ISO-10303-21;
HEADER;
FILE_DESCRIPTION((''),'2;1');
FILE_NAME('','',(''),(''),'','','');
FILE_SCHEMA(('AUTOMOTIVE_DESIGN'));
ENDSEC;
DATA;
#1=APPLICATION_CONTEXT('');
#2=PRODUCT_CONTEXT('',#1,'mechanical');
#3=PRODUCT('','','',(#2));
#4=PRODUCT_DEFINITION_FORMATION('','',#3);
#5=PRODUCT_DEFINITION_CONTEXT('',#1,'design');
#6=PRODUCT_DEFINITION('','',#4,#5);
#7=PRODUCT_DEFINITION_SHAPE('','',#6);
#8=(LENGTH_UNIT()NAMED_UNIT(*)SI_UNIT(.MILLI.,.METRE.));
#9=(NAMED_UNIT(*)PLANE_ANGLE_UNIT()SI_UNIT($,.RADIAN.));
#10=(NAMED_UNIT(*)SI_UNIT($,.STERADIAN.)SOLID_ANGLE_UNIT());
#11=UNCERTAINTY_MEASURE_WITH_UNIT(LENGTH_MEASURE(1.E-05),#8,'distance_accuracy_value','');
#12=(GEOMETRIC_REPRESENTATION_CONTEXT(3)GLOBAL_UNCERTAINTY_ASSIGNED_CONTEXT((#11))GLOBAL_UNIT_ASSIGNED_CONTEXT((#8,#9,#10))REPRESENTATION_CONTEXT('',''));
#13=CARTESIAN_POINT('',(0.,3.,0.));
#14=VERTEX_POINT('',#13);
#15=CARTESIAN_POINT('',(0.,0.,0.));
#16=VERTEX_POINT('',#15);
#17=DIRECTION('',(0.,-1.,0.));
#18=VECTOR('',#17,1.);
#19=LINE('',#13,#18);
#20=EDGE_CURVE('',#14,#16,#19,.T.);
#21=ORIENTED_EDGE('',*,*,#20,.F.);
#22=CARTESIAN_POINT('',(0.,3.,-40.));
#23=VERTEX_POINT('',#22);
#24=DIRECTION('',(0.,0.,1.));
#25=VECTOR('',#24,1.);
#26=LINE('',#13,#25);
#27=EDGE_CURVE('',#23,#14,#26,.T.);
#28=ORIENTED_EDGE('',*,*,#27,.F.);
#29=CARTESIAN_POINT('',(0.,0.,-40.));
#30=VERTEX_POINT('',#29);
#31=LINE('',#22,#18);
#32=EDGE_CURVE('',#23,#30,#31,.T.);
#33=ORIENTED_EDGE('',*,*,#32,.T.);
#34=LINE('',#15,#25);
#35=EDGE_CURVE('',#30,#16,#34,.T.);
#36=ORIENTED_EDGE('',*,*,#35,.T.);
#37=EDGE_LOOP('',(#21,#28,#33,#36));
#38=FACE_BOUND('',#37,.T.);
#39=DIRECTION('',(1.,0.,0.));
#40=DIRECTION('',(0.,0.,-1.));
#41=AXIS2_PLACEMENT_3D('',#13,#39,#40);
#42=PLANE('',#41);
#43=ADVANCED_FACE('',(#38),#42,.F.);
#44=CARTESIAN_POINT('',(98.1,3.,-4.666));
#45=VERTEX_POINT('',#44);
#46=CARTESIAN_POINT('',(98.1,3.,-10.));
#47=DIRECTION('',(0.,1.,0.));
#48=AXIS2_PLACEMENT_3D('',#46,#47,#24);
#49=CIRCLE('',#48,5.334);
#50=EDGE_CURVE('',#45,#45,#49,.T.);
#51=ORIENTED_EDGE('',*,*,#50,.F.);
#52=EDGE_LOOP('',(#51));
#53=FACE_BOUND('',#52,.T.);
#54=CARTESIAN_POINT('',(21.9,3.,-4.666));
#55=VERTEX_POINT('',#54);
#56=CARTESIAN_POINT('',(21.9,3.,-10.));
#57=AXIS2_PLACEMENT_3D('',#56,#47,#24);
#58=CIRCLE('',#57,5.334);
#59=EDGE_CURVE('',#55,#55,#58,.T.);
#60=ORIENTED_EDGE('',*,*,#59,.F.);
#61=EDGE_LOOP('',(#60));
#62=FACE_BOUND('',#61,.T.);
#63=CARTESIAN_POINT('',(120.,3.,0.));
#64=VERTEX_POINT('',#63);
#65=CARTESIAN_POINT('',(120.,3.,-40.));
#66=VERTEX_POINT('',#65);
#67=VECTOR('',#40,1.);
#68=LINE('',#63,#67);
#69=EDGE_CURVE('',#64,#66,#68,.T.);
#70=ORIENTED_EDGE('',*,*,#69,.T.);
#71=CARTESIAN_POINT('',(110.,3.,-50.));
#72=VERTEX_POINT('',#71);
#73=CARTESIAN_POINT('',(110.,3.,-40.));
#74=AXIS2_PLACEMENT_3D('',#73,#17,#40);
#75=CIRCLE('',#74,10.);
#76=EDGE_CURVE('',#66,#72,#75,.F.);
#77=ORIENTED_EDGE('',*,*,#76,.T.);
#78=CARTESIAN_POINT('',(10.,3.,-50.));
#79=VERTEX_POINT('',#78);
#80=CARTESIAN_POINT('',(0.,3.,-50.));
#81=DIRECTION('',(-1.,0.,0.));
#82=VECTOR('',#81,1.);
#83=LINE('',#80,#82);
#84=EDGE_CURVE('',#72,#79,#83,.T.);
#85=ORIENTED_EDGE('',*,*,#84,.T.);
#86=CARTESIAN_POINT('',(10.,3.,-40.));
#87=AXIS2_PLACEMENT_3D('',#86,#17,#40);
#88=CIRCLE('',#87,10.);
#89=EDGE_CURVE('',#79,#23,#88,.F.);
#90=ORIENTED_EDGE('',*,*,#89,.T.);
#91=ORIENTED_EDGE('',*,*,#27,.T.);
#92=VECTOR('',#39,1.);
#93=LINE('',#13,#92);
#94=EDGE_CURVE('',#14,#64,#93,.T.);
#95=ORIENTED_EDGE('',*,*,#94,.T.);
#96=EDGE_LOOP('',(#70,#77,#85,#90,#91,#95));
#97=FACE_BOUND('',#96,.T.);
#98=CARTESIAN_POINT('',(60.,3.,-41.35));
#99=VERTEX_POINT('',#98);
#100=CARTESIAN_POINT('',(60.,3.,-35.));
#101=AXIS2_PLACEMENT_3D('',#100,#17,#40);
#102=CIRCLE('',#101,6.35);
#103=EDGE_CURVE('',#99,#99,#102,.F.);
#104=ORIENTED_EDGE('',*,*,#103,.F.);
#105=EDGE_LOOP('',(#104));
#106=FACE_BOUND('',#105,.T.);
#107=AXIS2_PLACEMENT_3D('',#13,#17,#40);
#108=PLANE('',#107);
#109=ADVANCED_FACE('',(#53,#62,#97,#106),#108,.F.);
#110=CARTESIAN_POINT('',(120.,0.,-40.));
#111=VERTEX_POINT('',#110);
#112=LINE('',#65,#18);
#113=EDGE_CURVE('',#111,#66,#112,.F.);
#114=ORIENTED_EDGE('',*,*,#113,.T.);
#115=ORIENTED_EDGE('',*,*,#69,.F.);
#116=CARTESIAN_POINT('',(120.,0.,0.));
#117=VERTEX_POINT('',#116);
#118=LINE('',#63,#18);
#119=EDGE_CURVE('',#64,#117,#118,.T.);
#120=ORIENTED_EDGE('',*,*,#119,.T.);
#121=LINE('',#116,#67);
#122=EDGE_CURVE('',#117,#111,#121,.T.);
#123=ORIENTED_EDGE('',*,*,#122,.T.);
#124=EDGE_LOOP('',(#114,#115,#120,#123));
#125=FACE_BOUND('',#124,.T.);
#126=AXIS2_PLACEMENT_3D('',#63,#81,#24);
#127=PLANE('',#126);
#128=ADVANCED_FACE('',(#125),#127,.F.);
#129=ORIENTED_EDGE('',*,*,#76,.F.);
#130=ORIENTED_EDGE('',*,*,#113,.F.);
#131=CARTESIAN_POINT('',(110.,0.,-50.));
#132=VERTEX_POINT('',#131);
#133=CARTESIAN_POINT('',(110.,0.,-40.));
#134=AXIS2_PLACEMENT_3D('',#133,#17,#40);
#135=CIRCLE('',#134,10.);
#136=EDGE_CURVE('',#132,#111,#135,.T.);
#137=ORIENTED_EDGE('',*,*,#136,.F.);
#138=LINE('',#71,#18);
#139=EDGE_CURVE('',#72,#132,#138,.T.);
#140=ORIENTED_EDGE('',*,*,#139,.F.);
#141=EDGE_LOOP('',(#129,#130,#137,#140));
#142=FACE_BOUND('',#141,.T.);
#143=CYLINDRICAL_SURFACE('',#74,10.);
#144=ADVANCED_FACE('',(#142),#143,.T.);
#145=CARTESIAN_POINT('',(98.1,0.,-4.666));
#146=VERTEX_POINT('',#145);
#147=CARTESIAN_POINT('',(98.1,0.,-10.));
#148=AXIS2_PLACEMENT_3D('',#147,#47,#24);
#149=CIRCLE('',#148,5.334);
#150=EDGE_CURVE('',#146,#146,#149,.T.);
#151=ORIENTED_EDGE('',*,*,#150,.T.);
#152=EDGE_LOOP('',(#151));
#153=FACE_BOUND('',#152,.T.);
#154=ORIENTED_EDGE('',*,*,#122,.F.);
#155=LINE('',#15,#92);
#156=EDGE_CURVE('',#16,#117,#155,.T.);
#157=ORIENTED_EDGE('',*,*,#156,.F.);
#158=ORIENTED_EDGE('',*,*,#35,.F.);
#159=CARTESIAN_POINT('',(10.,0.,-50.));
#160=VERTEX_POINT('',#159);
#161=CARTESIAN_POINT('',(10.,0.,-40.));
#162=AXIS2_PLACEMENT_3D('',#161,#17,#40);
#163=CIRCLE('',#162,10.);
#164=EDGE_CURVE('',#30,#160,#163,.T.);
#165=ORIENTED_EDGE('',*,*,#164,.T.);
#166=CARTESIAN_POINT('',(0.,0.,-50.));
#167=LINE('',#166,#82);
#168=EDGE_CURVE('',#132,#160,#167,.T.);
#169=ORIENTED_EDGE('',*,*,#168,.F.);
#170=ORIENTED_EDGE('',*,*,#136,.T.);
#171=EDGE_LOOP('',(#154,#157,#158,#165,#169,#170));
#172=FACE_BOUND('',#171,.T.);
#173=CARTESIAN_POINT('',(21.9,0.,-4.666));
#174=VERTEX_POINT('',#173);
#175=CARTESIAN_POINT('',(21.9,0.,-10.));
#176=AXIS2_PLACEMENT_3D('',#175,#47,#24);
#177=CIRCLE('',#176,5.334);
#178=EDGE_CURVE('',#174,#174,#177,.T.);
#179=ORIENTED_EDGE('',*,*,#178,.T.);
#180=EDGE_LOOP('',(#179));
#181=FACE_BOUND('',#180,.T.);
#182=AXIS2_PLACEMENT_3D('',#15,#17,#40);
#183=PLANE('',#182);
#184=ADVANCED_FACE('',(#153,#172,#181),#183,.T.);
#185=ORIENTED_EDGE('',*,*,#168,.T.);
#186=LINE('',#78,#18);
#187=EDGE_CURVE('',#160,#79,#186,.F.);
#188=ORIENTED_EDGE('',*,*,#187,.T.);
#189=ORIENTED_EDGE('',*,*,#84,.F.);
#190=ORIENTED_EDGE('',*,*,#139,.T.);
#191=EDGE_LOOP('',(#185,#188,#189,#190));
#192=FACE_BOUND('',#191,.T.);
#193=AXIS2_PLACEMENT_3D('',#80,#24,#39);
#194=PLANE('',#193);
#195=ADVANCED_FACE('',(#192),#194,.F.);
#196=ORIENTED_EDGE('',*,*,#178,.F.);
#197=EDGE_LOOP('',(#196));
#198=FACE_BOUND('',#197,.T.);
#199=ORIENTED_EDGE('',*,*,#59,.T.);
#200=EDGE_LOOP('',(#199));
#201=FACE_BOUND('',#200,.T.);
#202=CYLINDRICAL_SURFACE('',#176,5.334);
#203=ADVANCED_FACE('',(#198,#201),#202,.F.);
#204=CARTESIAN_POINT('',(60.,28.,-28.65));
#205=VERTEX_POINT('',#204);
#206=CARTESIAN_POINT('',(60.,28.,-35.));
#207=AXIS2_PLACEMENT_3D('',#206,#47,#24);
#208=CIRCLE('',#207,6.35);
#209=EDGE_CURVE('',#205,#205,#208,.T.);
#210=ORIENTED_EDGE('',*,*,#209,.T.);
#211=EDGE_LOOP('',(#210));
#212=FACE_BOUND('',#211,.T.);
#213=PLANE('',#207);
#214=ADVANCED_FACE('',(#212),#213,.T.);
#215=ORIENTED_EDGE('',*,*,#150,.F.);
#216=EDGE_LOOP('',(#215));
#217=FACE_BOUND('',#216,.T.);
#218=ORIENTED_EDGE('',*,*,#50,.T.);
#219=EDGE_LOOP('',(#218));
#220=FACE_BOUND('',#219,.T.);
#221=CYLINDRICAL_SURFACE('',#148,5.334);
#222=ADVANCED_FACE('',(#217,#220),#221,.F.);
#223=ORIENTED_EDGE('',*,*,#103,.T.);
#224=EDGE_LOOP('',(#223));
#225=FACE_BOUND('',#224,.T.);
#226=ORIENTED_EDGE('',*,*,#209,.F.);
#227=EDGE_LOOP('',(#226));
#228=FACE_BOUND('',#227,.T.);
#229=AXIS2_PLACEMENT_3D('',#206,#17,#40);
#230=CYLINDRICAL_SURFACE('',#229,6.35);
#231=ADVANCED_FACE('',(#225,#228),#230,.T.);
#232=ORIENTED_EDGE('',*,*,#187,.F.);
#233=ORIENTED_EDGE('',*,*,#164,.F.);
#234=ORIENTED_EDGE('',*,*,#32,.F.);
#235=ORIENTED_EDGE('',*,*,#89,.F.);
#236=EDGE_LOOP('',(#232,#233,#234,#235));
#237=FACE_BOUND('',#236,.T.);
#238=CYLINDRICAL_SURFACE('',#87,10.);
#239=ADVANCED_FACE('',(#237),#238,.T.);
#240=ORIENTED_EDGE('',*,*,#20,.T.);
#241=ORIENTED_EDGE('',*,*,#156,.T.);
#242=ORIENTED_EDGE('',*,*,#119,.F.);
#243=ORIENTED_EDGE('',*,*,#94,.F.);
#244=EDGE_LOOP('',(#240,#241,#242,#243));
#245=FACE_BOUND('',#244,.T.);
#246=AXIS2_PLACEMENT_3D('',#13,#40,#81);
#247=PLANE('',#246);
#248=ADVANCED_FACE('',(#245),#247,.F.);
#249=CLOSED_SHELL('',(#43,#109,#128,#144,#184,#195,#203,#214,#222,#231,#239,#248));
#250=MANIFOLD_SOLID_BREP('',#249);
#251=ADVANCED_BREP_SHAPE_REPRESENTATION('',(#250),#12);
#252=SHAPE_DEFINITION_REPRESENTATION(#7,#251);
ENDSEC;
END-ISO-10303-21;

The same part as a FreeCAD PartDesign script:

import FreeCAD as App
import Part
import Sketcher


def edges_at(feature, points):
    """Names of the edges that pass closest to the given points."""
    edges = feature.Shape.Edges
    near = lambda p: min(range(len(edges)), key=lambda i: edges[i].distToShape(Part.Vertex(*p))[0])
    return sorted({f"Edge{near(p) + 1}" for p in points})

doc = App.newDocument("Part")
body = doc.addObject("PartDesign::Body", "Body")

# Sketch on XZ plane
sketch1 = doc.addObject("Sketcher::SketchObject", "Sketch")
body.addObject(sketch1)
sketch1.AttachmentSupport = (doc.XZ_Plane, [""])
sketch1.MapMode = "FlatFace"
sketch1.addGeometry(Part.LineSegment(App.Vector(0, -50, 0), App.Vector(0, 0, 0)), False)
sketch1.addGeometry(Part.LineSegment(App.Vector(0, 0, 0), App.Vector(120, 0, 0)), False)
sketch1.addGeometry(Part.LineSegment(App.Vector(120, 0, 0), App.Vector(120, -50, 0)), False)
sketch1.addGeometry(Part.LineSegment(App.Vector(120, -50, 0), App.Vector(0, -50, 0)), False)
sketch1.addConstraint(Sketcher.Constraint("Coincident", 0, 2, 1, 1))
sketch1.addConstraint(Sketcher.Constraint("Coincident", 1, 2, 2, 1))
sketch1.addConstraint(Sketcher.Constraint("Coincident", 2, 2, 3, 1))
sketch1.addConstraint(Sketcher.Constraint("Coincident", 3, 2, 0, 1))
sketch1.addConstraint(Sketcher.Constraint("Vertical", 0))
sketch1.addConstraint(Sketcher.Constraint("Horizontal", 1))
sketch1.addConstraint(Sketcher.Constraint("Vertical", 2))
sketch1.addConstraint(Sketcher.Constraint("Horizontal", 3))
sketch1.addConstraint(Sketcher.Constraint("Coincident", 0, 2, -1, 1))
sketch1.addConstraint(Sketcher.Constraint("DistanceX", 1, 1, 1, 2, 120.0))
sketch1.addConstraint(Sketcher.Constraint("DistanceY", 0, 1, 0, 2, 50.0))
pad1 = doc.addObject("PartDesign::Pad", "Pad")
body.addObject(pad1)
pad1.Profile = sketch1
pad1.Length = 3
pad1.Reversed = True

# Sketch on XZ plane
sketch2 = doc.addObject("Sketcher::SketchObject", "Sketch001")
body.addObject(sketch2)
sketch2.AttachmentSupport = (doc.XZ_Plane, [""])
sketch2.MapMode = "FlatFace"
sketch2.AttachmentOffset = App.Placement(App.Vector(0, 0, -3), App.Rotation())
sketch2.addGeometry(Part.Circle(App.Vector(21.9, -10, 0), App.Vector(0, 0, 1), 5.334), False)
sketch2.addGeometry(Part.Circle(App.Vector(98.1, -10, 0), App.Vector(0, 0, 1), 5.334), False)
sketch2.addConstraint(Sketcher.Constraint("Equal", 0, 1))
sketch2.addConstraint(Sketcher.Constraint("Horizontal", 0, 3, 1, 3))
sketch2.addConstraint(Sketcher.Constraint("Diameter", 0, 10.668))
sketch2.addConstraint(Sketcher.Constraint("DistanceY", 0, 3, -1, 1, 10.0))
sketch2.addConstraint(Sketcher.Constraint("DistanceX", -1, 1, 0, 3, 21.9))
sketch2.addConstraint(Sketcher.Constraint("DistanceX", -1, 1, 1, 3, 98.1))
pocket1 = doc.addObject("PartDesign::Pocket", "Pocket")
body.addObject(pocket1)
pocket1.Profile = sketch2
pocket1.Type = "ThroughAll"
pocket1.Reversed = True

# Sketch on XZ plane
sketch3 = doc.addObject("Sketcher::SketchObject", "Sketch002")
body.addObject(sketch3)
sketch3.AttachmentSupport = (doc.XZ_Plane, [""])
sketch3.MapMode = "FlatFace"
sketch3.AttachmentOffset = App.Placement(App.Vector(0, 0, -3), App.Rotation())
sketch3.addGeometry(Part.Circle(App.Vector(60, -35, 0), App.Vector(0, 0, 1), 6.35), False)
sketch3.addConstraint(Sketcher.Constraint("Diameter", 0, 12.7))
sketch3.addConstraint(Sketcher.Constraint("DistanceX", -1, 1, 0, 3, 60.0))
sketch3.addConstraint(Sketcher.Constraint("DistanceY", 0, 3, -1, 1, 35.0))
pad2 = doc.addObject("PartDesign::Pad", "Pad001")
body.addObject(pad2)
pad2.Profile = sketch3
pad2.Length = 25
pad2.Reversed = True
doc.recompute()

fillet = doc.addObject("PartDesign::Fillet", "Fillet")
body.addObject(fillet)
fillet.Base = (pad2, edges_at(pad2, [(0, 1.5, -50), (120, 1.5, -50)]))
fillet.Radius = 10

doc.recompute()
